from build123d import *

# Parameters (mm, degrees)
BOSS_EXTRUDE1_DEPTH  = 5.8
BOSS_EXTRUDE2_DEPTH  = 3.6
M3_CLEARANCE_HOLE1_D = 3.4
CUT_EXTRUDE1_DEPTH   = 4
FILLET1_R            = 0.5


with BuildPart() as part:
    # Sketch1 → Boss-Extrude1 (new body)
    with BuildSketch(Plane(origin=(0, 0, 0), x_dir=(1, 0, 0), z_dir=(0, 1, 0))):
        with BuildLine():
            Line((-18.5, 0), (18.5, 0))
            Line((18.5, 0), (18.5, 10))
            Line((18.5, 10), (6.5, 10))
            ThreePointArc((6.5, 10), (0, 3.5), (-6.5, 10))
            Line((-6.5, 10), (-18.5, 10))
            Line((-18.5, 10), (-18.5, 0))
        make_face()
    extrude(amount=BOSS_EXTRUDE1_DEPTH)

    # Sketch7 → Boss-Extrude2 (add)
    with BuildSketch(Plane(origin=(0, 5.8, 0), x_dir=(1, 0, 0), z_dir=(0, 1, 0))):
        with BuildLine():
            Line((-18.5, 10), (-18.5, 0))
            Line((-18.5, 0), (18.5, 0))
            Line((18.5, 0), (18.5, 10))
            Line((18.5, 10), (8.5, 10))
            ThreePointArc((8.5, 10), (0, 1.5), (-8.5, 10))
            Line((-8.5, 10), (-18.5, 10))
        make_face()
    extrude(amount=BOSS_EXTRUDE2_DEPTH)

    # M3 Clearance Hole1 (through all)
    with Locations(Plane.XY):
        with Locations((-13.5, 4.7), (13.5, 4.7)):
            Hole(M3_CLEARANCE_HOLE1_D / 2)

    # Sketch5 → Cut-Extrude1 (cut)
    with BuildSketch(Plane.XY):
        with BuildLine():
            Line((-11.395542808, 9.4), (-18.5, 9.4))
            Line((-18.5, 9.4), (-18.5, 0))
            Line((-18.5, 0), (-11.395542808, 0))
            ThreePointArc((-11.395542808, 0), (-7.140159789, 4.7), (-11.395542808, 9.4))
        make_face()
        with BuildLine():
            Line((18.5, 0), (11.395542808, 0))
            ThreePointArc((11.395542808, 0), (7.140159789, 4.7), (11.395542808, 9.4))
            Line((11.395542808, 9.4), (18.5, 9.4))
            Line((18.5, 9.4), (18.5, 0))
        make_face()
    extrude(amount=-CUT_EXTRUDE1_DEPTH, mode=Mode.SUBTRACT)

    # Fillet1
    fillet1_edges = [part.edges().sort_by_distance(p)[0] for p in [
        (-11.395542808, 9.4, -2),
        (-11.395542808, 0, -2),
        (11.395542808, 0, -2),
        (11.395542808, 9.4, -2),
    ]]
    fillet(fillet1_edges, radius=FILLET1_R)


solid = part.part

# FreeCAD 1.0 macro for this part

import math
import FreeCAD as App
import Part
import Sketcher


def edges_at(feature, points):
    """Names of the edges that pass closest to the given points."""
    edges = feature.Shape.Edges
    near = lambda p: min(range(len(edges)), key=lambda i: edges[i].distToShape(Part.Vertex(*p))[0])
    return sorted({f"Edge{near(p) + 1}" for p in points})

doc = App.newDocument("Part")
body = doc.addObject("PartDesign::Body", "Body")

# Sketch on XZ plane
sketch1 = body.newObject("Sketcher::SketchObject", "Sketch")
sketch1.AttachmentSupport = (doc.getObject("XZ_Plane"), [""])
sketch1.MapMode = "FlatFace"
sketch1.addGeometry([
    Part.LineSegment(App.Vector(-18, 0, 0), App.Vector(18, 0, 0)),  # 0
    Part.LineSegment(App.Vector(18, 0, 0), App.Vector(18, -10, 0)),  # 1
    Part.LineSegment(App.Vector(18, -10, 0), App.Vector(6, -10, 0)),  # 2
    Part.ArcOfCircle(Part.Circle(App.Vector(0, -10, 0), App.Vector(0, 0, 1), 6), math.radians(0), math.radians(180)),  # 3
    Part.LineSegment(App.Vector(-6, -10, 0), App.Vector(-18, -10, 0)),  # 4
    Part.LineSegment(App.Vector(-18, -10, 0), App.Vector(-18, 0, 0)),  # 5
], False)
sketch1.addConstraint([
    Sketcher.Constraint("Coincident", 0, 2, 1, 1),
    Sketcher.Constraint("Coincident", 1, 2, 2, 1),
    Sketcher.Constraint("Coincident", 2, 2, 3, 1),
    Sketcher.Constraint("Coincident", 3, 2, 4, 1),
    Sketcher.Constraint("Coincident", 4, 2, 5, 1),
    Sketcher.Constraint("Coincident", 5, 2, 0, 1),
    Sketcher.Constraint("Horizontal", 0),
    Sketcher.Constraint("Vertical", 1),
    Sketcher.Constraint("Horizontal", 2),
    Sketcher.Constraint("Horizontal", 4),
    Sketcher.Constraint("Vertical", 5),
    Sketcher.Constraint("Symmetric", 0, 2, 5, 2, -1, 1),
    Sketcher.Constraint("Symmetric", 2, 2, 3, 2, -2),
    Sketcher.Constraint("Horizontal", 3, 3, 1, 2),
    Sketcher.Constraint("Radius", 3, 6.5),
    Sketcher.Constraint("DistanceX", 0, 1, 0, 2, 37.0),
    Sketcher.Constraint("DistanceY", 1, 2, 1, 1, 10.0),
])
pad1 = body.newObject("PartDesign::Pad", "Pad")
pad1.Profile = sketch1
pad1.Length = 5.8
pad1.Reversed = True

# Sketch on XZ plane
sketch2 = body.newObject("Sketcher::SketchObject", "Sketch001")
sketch2.AttachmentSupport = (doc.getObject("XZ_Plane"), [""])
sketch2.MapMode = "FlatFace"
sketch2.AttachmentOffset = App.Placement(App.Vector(0, 0, -5.8), App.Rotation())
sketch2.addGeometry([
    Part.LineSegment(App.Vector(-18, -10, 0), App.Vector(-18, 0, 0)),  # 0
    Part.LineSegment(App.Vector(-18, 0, 0), App.Vector(18, 0, 0)),  # 1
    Part.LineSegment(App.Vector(18, 0, 0), App.Vector(18, -10, 0)),  # 2
    Part.LineSegment(App.Vector(18, -10, 0), App.Vector(8, -10, 0)),  # 3
    Part.ArcOfCircle(Part.Circle(App.Vector(0, -10, 0), App.Vector(0, 0, 1), 8), math.radians(0), math.radians(180)),  # 4
    Part.LineSegment(App.Vector(-8, -10, 0), App.Vector(-18, -10, 0)),  # 5
], False)
sketch2.addConstraint([
    Sketcher.Constraint("Coincident", 0, 2, 1, 1),
    Sketcher.Constraint("Coincident", 1, 2, 2, 1),
    Sketcher.Constraint("Coincident", 2, 2, 3, 1),
    Sketcher.Constraint("Coincident", 3, 2, 4, 1),
    Sketcher.Constraint("Coincident", 4, 2, 5, 1),
    Sketcher.Constraint("Coincident", 5, 2, 0, 1),
    Sketcher.Constraint("Vertical", 0),
    Sketcher.Constraint("Horizontal", 1),
    Sketcher.Constraint("Vertical", 2),
    Sketcher.Constraint("Horizontal", 3),
    Sketcher.Constraint("Horizontal", 5),
    Sketcher.Constraint("Symmetric", 0, 2, 1, 2, -1, 1),
    Sketcher.Constraint("Symmetric", 3, 2, 4, 2, -2),
    Sketcher.Constraint("Horizontal", 4, 3, 2, 2),
    Sketcher.Constraint("Equal", 5, 0),
    Sketcher.Constraint("Radius", 4, 8.5),
    Sketcher.Constraint("DistanceX", 1, 1, 1, 2, 37.0),
])
pad2 = body.newObject("PartDesign::Pad", "Pad001")
pad2.Profile = sketch2
pad2.Length = 3.6
pad2.Reversed = True

# Sketch on XY plane
sketch3 = body.newObject("Sketcher::SketchObject", "Sketch002")
sketch3.AttachmentSupport = (doc.getObject("XY_Plane"), [""])
sketch3.MapMode = "FlatFace"
sketch3.addGeometry([
    Part.Circle(App.Vector(-13.5, 4.7, 0), App.Vector(0, 0, 1), 1.7),
    Part.Circle(App.Vector(13.5, 4.7, 0), App.Vector(0, 0, 1), 1.7),
], False)
sketch3.addConstraint([
    Sketcher.Constraint("Equal", 0, 1),
    Sketcher.Constraint("Symmetric", 0, 3, 1, 3, -2),
    Sketcher.Constraint("Diameter", 0, 3.4),
    Sketcher.Constraint("DistanceX", 0, 3, 1, 3, 27.0),
    Sketcher.Constraint("DistanceY", -1, 1, 0, 3, 4.7),
])
doc.recompute()
hole = body.newObject("PartDesign::Hole", "Hole")
hole.Profile = sketch3
hole.ThreadType = "None"
hole.Diameter = 3.4
hole.DepthType = "ThroughAll"

# Sketch on XY plane
sketch4 = body.newObject("Sketcher::SketchObject", "Sketch003")
sketch4.AttachmentSupport = (doc.getObject("XY_Plane"), [""])
sketch4.MapMode = "FlatFace"
sketch4.addGeometry([
    Part.LineSegment(App.Vector(-11.4, 9.4, 0), App.Vector(-18.5, 9.4, 0)),  # 0
    Part.LineSegment(App.Vector(-18.5, 9.4, 0), App.Vector(-18.5, 0, 0)),  # 1
    Part.LineSegment(App.Vector(-18.5, 0, 0), App.Vector(-11.4, 0, 0)),  # 2
    Part.ArcOfCircle(Part.Circle(App.Vector(-11.9, 4.7, 0), App.Vector(0, 0, 1), 4.7), math.radians(-84), math.radians(84)),  # 3
    Part.LineSegment(App.Vector(11.4, 0, 0), App.Vector(18.5, 0, 0)),  # 4
    Part.LineSegment(App.Vector(18.5, 0, 0), App.Vector(18.5, 9.4, 0)),  # 5
    Part.LineSegment(App.Vector(18.5, 9.4, 0), App.Vector(11.4, 9.4, 0)),  # 6
    Part.ArcOfCircle(Part.Circle(App.Vector(11.9, 4.7, 0), App.Vector(0, 0, 1), 4.7), math.radians(96), math.radians(264)),  # 7
], False)
sketch4.addConstraint([
    Sketcher.Constraint("Coincident", 0, 2, 1, 1),
    Sketcher.Constraint("Coincident", 1, 2, 2, 1),
    Sketcher.Constraint("Coincident", 2, 2, 3, 1),
    Sketcher.Constraint("Coincident", 3, 2, 0, 1),
    Sketcher.Constraint("Coincident", 4, 2, 5, 1),
    Sketcher.Constraint("Coincident", 5, 2, 6, 1),
    Sketcher.Constraint("Coincident", 6, 2, 7, 1),
    Sketcher.Constraint("Coincident", 7, 2, 4, 1),
    Sketcher.Constraint("Horizontal", 0),
    Sketcher.Constraint("Vertical", 1),
    Sketcher.Constraint("Horizontal", 2),
    Sketcher.Constraint("Horizontal", 4),
    Sketcher.Constraint("Vertical", 5),
    Sketcher.Constraint("Horizontal", 6),
    Sketcher.Constraint("Equal", 3, 7),
    Sketcher.Constraint("Symmetric", 1, 2, 4, 2, -1, 1),
    Sketcher.Constraint("Symmetric", 3, 3, 7, 3, -2),
    Sketcher.Constraint("PointOnObject", 1, 2, -1),
    Sketcher.Constraint("Horizontal", 3, 2, 5, 2),
    Sketcher.Constraint("Vertical", 2, 2, 3, 2),
    Sketcher.Constraint("DistanceY", 1, 2, 1, 1, 9.4),
    Sketcher.Constraint("DistanceX", 1, 2, 4, 2, 37.0),
    Sketcher.Constraint("Radius", 3, 4.723228),
    Sketcher.Constraint("DistanceX", 0, 2, 0, 1, 7.104457),
])
pocket1 = body.newObject("PartDesign::Pocket", "Pocket")
pocket1.Profile = sketch4
pocket1.Length = 4
doc.recompute()

fillet = body.newObject("PartDesign::Fillet", "Fillet")
fillet.Base = (pocket1, edges_at(pocket1, [
    (-11.396, 9.4, -2),
    (-11.396, 0, -2),
    (11.396, 0, -2),
    (11.396, 9.4, -2),
]))
fillet.Radius = 0.5

doc.recompute()
